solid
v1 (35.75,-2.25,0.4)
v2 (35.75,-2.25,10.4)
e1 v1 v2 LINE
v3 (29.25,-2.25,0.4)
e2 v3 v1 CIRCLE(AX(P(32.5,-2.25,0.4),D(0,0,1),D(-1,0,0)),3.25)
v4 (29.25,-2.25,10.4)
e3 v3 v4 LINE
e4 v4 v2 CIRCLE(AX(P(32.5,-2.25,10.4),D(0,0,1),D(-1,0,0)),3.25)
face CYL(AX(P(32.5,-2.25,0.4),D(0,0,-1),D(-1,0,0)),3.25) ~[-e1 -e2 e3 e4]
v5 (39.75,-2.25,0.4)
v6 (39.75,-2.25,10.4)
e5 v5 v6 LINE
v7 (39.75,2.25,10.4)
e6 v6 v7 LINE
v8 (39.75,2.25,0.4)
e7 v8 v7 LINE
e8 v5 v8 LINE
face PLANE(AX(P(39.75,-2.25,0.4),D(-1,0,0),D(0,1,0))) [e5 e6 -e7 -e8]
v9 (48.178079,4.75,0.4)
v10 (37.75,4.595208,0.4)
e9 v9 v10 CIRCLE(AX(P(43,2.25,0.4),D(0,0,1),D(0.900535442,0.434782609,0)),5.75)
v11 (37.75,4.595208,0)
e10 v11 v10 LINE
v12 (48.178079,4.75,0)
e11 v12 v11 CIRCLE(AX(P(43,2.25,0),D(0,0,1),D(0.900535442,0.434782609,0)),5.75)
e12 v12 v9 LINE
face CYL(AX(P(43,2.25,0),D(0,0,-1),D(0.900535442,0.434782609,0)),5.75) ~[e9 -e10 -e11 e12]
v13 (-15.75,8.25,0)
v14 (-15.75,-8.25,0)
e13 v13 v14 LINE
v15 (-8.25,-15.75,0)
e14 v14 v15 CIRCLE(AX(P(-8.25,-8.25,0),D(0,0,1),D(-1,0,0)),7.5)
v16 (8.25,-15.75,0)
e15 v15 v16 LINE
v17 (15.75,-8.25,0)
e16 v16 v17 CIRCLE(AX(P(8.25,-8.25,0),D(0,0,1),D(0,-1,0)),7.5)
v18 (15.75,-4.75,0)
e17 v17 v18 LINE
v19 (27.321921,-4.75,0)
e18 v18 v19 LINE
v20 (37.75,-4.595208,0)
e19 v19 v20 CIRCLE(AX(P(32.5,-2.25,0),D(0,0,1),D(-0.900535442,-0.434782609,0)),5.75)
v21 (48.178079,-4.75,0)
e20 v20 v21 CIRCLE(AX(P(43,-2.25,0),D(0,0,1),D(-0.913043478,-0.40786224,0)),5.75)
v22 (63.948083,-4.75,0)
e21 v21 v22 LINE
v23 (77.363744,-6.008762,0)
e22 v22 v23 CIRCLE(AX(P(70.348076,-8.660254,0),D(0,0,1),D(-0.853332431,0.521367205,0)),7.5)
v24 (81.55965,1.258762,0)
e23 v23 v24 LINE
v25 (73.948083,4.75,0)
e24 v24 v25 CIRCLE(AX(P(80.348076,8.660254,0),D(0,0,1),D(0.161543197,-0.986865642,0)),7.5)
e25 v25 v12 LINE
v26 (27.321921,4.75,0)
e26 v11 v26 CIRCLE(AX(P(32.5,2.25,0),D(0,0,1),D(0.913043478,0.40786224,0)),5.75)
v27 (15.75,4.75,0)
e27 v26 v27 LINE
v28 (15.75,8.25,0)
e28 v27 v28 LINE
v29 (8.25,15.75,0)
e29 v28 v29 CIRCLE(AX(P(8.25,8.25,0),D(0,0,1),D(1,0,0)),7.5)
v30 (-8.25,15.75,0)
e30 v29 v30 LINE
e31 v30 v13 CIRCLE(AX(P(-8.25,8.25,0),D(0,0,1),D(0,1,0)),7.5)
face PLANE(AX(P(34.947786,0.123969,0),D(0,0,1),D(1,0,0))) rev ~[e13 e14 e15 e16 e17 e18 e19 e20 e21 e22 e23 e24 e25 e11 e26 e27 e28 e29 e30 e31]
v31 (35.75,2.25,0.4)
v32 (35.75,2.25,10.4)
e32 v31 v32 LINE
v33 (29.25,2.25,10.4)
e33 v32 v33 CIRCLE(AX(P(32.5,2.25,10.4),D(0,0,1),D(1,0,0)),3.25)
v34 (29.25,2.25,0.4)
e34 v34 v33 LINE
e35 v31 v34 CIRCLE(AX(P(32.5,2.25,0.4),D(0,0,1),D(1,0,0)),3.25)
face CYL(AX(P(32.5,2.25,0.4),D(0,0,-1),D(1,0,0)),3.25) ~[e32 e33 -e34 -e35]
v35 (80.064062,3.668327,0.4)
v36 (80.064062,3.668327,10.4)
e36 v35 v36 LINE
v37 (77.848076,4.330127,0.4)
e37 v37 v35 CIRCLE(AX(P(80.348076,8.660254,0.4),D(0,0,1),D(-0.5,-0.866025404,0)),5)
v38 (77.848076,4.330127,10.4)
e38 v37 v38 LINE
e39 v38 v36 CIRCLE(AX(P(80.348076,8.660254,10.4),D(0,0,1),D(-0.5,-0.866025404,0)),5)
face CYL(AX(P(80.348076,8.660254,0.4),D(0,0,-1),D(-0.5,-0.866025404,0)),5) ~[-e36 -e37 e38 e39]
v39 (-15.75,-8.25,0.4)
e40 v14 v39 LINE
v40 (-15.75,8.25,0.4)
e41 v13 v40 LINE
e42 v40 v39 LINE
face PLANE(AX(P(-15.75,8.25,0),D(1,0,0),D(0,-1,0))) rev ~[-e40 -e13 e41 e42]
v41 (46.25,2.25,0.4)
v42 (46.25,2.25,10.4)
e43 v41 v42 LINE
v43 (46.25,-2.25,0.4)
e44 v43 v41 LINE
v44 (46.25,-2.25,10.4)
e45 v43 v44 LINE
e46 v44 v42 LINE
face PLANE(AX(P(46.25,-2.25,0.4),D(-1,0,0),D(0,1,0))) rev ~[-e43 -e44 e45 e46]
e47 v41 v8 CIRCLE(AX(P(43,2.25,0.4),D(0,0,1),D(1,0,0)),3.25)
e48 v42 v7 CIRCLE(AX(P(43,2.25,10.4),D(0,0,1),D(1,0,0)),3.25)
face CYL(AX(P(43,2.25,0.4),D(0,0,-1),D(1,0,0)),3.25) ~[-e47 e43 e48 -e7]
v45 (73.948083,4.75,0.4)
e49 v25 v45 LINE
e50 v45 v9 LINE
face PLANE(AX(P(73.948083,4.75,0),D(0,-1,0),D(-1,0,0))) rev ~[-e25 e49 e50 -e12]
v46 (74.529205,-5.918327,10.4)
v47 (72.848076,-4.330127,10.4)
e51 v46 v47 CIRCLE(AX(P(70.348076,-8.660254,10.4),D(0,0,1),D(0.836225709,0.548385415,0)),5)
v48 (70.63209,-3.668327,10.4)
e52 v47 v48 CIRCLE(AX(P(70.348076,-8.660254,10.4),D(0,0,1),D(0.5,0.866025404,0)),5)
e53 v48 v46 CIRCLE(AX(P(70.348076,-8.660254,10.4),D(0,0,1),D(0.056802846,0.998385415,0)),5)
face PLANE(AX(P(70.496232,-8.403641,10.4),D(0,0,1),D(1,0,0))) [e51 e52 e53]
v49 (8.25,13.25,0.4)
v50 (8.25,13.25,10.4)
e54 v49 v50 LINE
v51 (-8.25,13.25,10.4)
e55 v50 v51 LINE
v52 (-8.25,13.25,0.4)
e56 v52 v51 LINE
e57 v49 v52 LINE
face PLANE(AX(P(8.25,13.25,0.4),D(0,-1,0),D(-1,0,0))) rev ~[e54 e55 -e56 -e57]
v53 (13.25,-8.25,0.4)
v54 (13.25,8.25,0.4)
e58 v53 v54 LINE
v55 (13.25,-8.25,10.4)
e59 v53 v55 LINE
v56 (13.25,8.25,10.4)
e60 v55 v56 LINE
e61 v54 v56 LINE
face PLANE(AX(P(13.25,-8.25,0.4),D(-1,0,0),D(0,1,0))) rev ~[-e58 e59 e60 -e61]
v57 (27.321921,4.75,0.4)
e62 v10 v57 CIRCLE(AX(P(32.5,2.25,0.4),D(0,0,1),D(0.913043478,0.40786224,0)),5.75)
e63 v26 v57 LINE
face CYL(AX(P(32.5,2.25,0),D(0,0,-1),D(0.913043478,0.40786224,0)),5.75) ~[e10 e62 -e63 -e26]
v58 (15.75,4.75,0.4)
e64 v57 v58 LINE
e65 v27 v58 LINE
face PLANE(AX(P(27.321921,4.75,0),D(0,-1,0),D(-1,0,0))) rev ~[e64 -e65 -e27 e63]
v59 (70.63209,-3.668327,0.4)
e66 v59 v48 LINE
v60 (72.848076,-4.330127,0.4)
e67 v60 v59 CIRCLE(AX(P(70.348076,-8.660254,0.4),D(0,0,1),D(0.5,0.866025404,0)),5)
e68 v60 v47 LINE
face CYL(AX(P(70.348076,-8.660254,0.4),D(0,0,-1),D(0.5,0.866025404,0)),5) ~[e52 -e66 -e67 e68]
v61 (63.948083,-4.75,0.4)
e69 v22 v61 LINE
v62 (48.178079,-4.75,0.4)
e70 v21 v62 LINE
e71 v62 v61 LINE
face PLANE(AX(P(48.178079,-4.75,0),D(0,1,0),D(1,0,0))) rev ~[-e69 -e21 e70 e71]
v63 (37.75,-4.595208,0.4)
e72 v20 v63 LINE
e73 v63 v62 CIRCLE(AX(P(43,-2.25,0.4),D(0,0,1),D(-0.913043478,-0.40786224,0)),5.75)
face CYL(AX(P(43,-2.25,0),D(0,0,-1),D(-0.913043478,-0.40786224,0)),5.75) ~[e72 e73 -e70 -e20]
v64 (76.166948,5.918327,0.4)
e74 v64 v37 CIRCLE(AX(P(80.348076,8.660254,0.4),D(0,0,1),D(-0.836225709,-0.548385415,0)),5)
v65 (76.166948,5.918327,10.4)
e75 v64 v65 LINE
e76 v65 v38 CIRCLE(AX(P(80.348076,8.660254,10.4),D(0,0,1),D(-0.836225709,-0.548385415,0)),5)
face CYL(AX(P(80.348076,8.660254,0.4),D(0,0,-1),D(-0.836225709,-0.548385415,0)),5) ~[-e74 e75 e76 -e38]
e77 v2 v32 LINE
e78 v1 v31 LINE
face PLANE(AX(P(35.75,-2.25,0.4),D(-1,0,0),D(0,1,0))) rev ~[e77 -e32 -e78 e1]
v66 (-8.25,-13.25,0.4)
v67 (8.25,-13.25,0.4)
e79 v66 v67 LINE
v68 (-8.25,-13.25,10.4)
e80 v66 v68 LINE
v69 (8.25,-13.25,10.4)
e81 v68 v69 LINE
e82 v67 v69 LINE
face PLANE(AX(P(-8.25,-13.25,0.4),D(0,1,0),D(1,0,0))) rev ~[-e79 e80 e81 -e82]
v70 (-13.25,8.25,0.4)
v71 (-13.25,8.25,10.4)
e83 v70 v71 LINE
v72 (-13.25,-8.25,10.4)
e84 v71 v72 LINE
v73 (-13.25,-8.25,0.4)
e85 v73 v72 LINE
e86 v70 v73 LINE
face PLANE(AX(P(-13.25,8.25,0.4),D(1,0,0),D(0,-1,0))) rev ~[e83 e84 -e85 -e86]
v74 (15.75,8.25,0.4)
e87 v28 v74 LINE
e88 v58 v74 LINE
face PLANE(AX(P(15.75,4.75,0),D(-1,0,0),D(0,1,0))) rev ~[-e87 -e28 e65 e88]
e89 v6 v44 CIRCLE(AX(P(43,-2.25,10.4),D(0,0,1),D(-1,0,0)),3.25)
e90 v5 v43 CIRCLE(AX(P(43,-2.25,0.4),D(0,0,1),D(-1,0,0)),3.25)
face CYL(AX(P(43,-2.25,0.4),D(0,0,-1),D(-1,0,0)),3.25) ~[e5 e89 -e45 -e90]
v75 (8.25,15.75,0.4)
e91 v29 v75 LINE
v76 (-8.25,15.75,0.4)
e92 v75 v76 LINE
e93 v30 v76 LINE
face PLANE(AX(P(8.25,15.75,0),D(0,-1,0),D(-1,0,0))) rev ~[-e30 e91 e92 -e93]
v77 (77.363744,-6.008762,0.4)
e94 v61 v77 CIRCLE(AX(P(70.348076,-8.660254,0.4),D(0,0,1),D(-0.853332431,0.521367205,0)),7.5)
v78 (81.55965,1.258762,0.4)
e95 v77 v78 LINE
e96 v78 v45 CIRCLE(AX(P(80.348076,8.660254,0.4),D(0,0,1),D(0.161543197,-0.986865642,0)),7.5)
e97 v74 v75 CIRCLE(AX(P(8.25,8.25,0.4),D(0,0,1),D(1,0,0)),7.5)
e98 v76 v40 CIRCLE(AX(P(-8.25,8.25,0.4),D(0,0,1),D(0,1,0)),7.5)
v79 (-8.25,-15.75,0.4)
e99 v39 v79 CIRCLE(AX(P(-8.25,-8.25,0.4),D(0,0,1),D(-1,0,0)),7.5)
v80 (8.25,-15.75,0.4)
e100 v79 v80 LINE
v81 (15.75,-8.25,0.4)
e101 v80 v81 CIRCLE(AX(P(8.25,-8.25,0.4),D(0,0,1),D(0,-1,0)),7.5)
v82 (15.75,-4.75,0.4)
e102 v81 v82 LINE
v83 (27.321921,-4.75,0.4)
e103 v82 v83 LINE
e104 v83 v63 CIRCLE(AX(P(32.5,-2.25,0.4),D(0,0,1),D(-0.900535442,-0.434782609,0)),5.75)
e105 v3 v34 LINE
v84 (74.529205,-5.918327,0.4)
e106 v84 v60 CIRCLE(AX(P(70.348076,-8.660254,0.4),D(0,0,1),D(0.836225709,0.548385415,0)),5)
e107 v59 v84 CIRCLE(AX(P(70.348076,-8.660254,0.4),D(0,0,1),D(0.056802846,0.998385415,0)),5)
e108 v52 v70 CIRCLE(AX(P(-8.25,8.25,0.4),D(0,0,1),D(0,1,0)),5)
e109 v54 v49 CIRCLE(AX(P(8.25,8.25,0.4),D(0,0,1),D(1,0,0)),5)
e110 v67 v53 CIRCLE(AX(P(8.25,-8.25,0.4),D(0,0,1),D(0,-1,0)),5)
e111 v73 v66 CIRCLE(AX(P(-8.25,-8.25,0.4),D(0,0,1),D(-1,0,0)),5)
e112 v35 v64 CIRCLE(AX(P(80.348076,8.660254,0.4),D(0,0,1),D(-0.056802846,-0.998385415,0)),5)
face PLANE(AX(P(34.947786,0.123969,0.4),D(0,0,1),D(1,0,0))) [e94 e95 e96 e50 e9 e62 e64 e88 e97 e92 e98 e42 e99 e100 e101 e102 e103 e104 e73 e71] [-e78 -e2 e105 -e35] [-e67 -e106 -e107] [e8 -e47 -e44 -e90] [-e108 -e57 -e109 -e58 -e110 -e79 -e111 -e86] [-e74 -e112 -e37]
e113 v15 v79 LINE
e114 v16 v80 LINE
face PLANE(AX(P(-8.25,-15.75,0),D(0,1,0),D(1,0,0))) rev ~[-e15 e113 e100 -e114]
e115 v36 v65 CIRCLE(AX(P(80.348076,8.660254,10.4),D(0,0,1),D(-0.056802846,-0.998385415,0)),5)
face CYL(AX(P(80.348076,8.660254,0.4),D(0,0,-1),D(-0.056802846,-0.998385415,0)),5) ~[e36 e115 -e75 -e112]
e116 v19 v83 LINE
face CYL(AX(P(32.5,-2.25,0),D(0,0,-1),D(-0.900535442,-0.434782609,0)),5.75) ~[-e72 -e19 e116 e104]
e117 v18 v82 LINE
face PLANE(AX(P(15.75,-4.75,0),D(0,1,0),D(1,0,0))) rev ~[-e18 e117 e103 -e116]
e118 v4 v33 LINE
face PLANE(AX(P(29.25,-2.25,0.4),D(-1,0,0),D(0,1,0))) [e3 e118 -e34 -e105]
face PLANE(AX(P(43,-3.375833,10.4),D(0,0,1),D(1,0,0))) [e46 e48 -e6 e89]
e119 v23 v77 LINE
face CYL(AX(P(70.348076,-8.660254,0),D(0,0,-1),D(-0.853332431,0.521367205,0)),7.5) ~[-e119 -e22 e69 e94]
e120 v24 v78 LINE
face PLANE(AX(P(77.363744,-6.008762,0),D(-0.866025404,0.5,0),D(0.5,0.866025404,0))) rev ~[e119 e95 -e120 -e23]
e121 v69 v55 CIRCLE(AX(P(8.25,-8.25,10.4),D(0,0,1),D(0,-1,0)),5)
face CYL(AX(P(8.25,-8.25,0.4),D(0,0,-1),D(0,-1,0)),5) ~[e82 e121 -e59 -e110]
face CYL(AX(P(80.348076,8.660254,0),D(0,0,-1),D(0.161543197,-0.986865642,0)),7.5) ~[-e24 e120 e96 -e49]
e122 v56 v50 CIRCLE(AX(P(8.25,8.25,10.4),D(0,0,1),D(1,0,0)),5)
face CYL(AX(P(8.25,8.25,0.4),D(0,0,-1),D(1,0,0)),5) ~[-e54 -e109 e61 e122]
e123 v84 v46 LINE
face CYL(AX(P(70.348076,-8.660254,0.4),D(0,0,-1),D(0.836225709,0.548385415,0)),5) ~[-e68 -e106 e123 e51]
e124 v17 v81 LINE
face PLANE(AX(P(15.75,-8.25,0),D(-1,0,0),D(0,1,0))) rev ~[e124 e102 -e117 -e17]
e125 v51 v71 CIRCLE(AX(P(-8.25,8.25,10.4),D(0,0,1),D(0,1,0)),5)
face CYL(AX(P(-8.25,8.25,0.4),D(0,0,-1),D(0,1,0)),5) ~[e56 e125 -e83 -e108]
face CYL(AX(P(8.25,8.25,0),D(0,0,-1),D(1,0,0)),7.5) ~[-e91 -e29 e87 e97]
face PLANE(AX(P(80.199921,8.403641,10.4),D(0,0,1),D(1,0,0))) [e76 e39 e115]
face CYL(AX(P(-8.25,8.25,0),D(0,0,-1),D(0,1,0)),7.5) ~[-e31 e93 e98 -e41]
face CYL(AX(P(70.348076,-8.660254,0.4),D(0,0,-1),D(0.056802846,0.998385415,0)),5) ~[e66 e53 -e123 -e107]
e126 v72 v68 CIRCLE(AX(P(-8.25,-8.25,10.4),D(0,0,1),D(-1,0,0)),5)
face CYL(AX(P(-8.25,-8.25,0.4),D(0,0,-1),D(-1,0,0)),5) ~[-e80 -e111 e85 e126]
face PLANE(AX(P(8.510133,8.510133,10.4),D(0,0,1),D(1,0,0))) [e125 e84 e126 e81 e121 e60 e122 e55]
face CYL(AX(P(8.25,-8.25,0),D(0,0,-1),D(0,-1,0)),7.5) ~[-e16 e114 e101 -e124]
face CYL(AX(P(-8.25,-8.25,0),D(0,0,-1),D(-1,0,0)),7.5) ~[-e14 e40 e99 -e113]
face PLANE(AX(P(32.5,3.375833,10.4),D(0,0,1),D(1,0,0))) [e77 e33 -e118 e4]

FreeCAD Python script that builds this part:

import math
import FreeCAD as App
import Part
import Sketcher

V = App.Vector
Q = App.Units.Quantity

doc = App.newDocument("Part")
body = doc.addObject("PartDesign::Body", "Body")

# Sketch on XY plane
sketch1 = body.newObject("Sketcher::SketchObject", "Sketch")
sketch1.AttachmentSupport = (doc.getObject("XY_Plane"), [""])
sketch1.MapMode = "FlatFace"
sketch1.addGeometry([
    Part.LineSegment(V(15.8, 4.8, 0), V(15.8, 8.2, 0)),  # 0
    Part.ArcOfCircle(Part.Circle(V(8.2, 8.2, 0), V(0, 0, 1), 7.5), math.radians(0), math.radians(90)),  # 1
    Part.LineSegment(V(8.2, 15.8, 0), V(-8.2, 15.8, 0)),  # 2
    Part.ArcOfCircle(Part.Circle(V(-8.2, 8.2, 0), V(0, 0, 1), 7.5), math.radians(90), math.radians(180)),  # 3
    Part.LineSegment(V(-15.8, 8.2, 0), V(-15.8, -8.2, 0)),  # 4
    Part.ArcOfCircle(Part.Circle(V(-8.2, -8.2, 0), V(0, 0, 1), 7.5), math.radians(180), math.radians(270)),  # 5
    Part.LineSegment(V(-8.2, -15.8, 0), V(8.2, -15.8, 0)),  # 6
    Part.ArcOfCircle(Part.Circle(V(8.2, -8.2, 0), V(0, 0, 1), 7.5), math.radians(-90), math.radians(0)),  # 7
    Part.LineSegment(V(15.8, -8.2, 0), V(15.8, -4.8, 0)),  # 8
    Part.LineSegment(V(15.8, -4.8, 0), V(27.3, -4.8, 0)),  # 9
    Part.ArcOfCircle(Part.Circle(V(32.5, -2.2, 0), V(0, 0, 1), 5.8), math.radians(-154), math.radians(-24)),  # 10
    Part.ArcOfCircle(Part.Circle(V(43, -2.2, 0), V(0, 0, 1), 5.8), math.radians(-156), math.radians(-26)),  # 11
    Part.LineSegment(V(48.2, -4.8, 0), V(63.9, -4.8, 0)),  # 12
    Part.ArcOfCircle(Part.Circle(V(70.3, -8.7, 0), V(0, 0, 1), 7.5), math.radians(149), math.radians(381)),  # 13
    Part.LineSegment(V(77.4, -6, 0), V(81.6, 1.3, 0)),  # 14
    Part.ArcOfCircle(Part.Circle(V(80.3, 8.7, 0), V(0, 0, 1), 7.5), math.radians(-81), math.radians(211)),  # 15
    Part.LineSegment(V(73.9, 4.8, 0), V(48.2, 4.8, 0)),  # 16
    Part.ArcOfCircle(Part.Circle(V(43, 2.2, 0), V(0, 0, 1), 5.8), math.radians(26), math.radians(156)),  # 17
    Part.ArcOfCircle(Part.Circle(V(32.5, 2.2, 0), V(0, 0, 1), 5.8), math.radians(24), math.radians(154)),  # 18
    Part.LineSegment(V(27.3, 4.8, 0), V(15.8, 4.8, 0)),  # 19
], False)
sketch1.addConstraint([
    Sketcher.Constraint("Tangent", 0, 2, 1, 1),
    Sketcher.Constraint("Tangent", 1, 2, 2, 1),
    Sketcher.Constraint("Tangent", 2, 2, 3, 1),
    Sketcher.Constraint("Tangent", 3, 2, 4, 1),
    Sketcher.Constraint("Tangent", 4, 2, 5, 1),
    Sketcher.Constraint("Tangent", 5, 2, 6, 1),
    Sketcher.Constraint("Tangent", 6, 2, 7, 1),
    Sketcher.Constraint("Tangent", 7, 2, 8, 1),
    Sketcher.Constraint("Coincident", 8, 2, 9, 1),
    Sketcher.Constraint("Coincident", 9, 2, 10, 1),
    Sketcher.Constraint("Coincident", 10, 2, 11, 1),
    Sketcher.Constraint("Coincident", 11, 2, 12, 1),
    Sketcher.Constraint("Coincident", 12, 2, 13, 1),
    Sketcher.Constraint("Coincident", 13, 2, 14, 1),
    Sketcher.Constraint("Coincident", 14, 2, 15, 1),
    Sketcher.Constraint("Coincident", 15, 2, 16, 1),
    Sketcher.Constraint("Coincident", 16, 2, 17, 1),
    Sketcher.Constraint("Coincident", 17, 2, 18, 1),
    Sketcher.Constraint("Coincident", 18, 2, 19, 1),
    Sketcher.Constraint("Coincident", 19, 2, 0, 1),
    Sketcher.Constraint("Vertical", 0),
    Sketcher.Constraint("Horizontal", 2),
    Sketcher.Constraint("Vertical", 4),
    Sketcher.Constraint("Horizontal", 6),
    Sketcher.Constraint("Vertical", 8),
    Sketcher.Constraint("Horizontal", 9),
    Sketcher.Constraint("Horizontal", 12),
    Sketcher.Constraint("Horizontal", 16),
    Sketcher.Constraint("Horizontal", 19),
    Sketcher.Constraint("Equal", 1, 3),
    Sketcher.Constraint("Equal", 3, 5),
    Sketcher.Constraint("Equal", 5, 7),
    Sketcher.Constraint("Equal", 10, 11),
    Sketcher.Constraint("Equal", 7, 13),
    Sketcher.Constraint("Equal", 13, 15),
    Sketcher.Constraint("Equal", 11, 17),
    Sketcher.Constraint("Equal", 17, 18),
    Sketcher.Constraint("Symmetric", 1, 3, 5, 3, -1, 1),
    Sketcher.Constraint("Symmetric", 11, 3, 17, 3, -1),
    Sketcher.Constraint("Symmetric", 10, 3, 18, 3, -1),
    Sketcher.Constraint("Symmetric", 8, 2, 19, 2, -1),
    Sketcher.Constraint("Horizontal", 10, 3, 11, 3),
    Sketcher.Constraint("Horizontal", 9, 2, 11, 2),
    Sketcher.Constraint("Horizontal", 16, 2, 18, 2),
    Sketcher.Constraint("Equal", 6, 4),
    Sketcher.Constraint("Radius", 1, 7.5),
    Sketcher.Constraint("Angle", 14, Q("60 deg")),
    Sketcher.Constraint("Radius", 10, 5.75),
    Sketcher.Constraint("DistanceX", 2, 2, 2, 1, 16.5),
    Sketcher.Constraint("DistanceY", 0, 1, 0, 2, 3.5),
    Sketcher.Constraint("DistanceX", -1, 1, 11, 3, 43.0),
    Sketcher.Constraint("DistanceY", 7, 3, 10, 3, 6.0),
    Sketcher.Constraint("DistanceX", 13, 3, 15, 3, 10.0),
    Sketcher.Constraint("DistanceX", 12, 2, 15, 2, 10.0),
    Sketcher.Constraint("DistanceX", -1, 1, 10, 3, 32.5),
    Sketcher.Constraint("DistanceX", 12, 1, 12, 2, 15.770004),
    Sketcher.Constraint("DistanceY", 13, 2, -1, 1, 6.008762),
    Sketcher.Constraint("DistanceX", -1, 1, 14, 2, 81.55965),
])
pad1 = body.newObject("PartDesign::Pad", "Pad")
pad1.Profile = sketch1
pad1.Length = 0.4

# Sketch on XY plane
sketch2 = body.newObject("Sketcher::SketchObject", "Sketch001")
sketch2.AttachmentSupport = (doc.getObject("XY_Plane"), [""])
sketch2.MapMode = "FlatFace"
sketch2.AttachmentOffset = App.Placement(V(0, 0, 0.4), App.Rotation())
sketch2.addGeometry([
    Part.ArcOfCircle(Part.Circle(V(8.2, 8.2, 0), V(0, 0, 1), 5), math.radians(0), math.radians(90)),  # 0
    Part.LineSegment(V(8.2, 13.2, 0), V(-8.2, 13.2, 0)),  # 1
    Part.ArcOfCircle(Part.Circle(V(-8.2, 8.2, 0), V(0, 0, 1), 5), math.radians(90), math.radians(180)),  # 2
    Part.LineSegment(V(-13.2, 8.2, 0), V(-13.2, -8.2, 0)),  # 3
    Part.ArcOfCircle(Part.Circle(V(-8.2, -8.2, 0), V(0, 0, 1), 5), math.radians(180), math.radians(270)),  # 4
    Part.LineSegment(V(-8.2, -13.2, 0), V(8.2, -13.2, 0)),  # 5
    Part.ArcOfCircle(Part.Circle(V(8.2, -8.2, 0), V(0, 0, 1), 5), math.radians(-90), math.radians(0)),  # 6
    Part.LineSegment(V(13.2, -8.2, 0), V(13.2, 8.2, 0)),  # 7
    Part.ArcOfCircle(Part.Circle(V(32.5, 2.2, 0), V(0, 0, 1), 3.2), math.radians(0), math.radians(180)),  # 8
    Part.LineSegment(V(29.2, 2.2, 0), V(29.2, -2.2, 0)),  # 9
    Part.ArcOfCircle(Part.Circle(V(32.5, -2.2, 0), V(0, 0, 1), 3.2), math.radians(180), math.radians(360)),  # 10
    Part.LineSegment(V(35.8, -2.2, 0), V(35.8, 2.2, 0)),  # 11
    Part.ArcOfCircle(Part.Circle(V(43, -2.2, 0), V(0, 0, 1), 3.2), math.radians(180), math.radians(360)),  # 12
    Part.LineSegment(V(46.2, -2.2, 0), V(46.2, 2.2, 0)),  # 13
    Part.ArcOfCircle(Part.Circle(V(43, 2.2, 0), V(0, 0, 1), 3.2), math.radians(0), math.radians(180)),  # 14
    Part.LineSegment(V(39.8, 2.2, 0), V(39.8, -2.2, 0)),  # 15
    Part.ArcOfCircle(Part.Circle(V(70.3, -8.7, 0), V(0, 0, 1), 5), math.radians(60), math.radians(87)),  # 16
    Part.ArcOfCircle(Part.Circle(V(70.3, -8.7, 0), V(0, 0, 1), 5), math.radians(87), math.radians(393)),  # 17
    Part.ArcOfCircle(Part.Circle(V(70.3, -8.7, 0), V(0, 0, 1), 5), math.radians(33), math.radians(60)),  # 18
    Part.ArcOfCircle(Part.Circle(V(80.3, 8.7, 0), V(0, 0, 1), 5), math.radians(-93), math.radians(213)),  # 19
    Part.ArcOfCircle(Part.Circle(V(80.3, 8.7, 0), V(0, 0, 1), 5), math.radians(-147), math.radians(-120)),  # 20
    Part.ArcOfCircle(Part.Circle(V(80.3, 8.7, 0), V(0, 0, 1), 5), math.radians(-120), math.radians(-93)),  # 21
], False)
sketch2.addConstraint([
    Sketcher.Constraint("Tangent", 0, 2, 1, 1),
    Sketcher.Constraint("Tangent", 1, 2, 2, 1),
    Sketcher.Constraint("Tangent", 2, 2, 3, 1),
    Sketcher.Constraint("Tangent", 3, 2, 4, 1),
    Sketcher.Constraint("Tangent", 4, 2, 5, 1),
    Sketcher.Constraint("Tangent", 5, 2, 6, 1),
    Sketcher.Constraint("Tangent", 6, 2, 7, 1),
    Sketcher.Constraint("Tangent", 7, 2, 0, 1),
    Sketcher.Constraint("Tangent", 8, 2, 9, 1),
    Sketcher.Constraint("Tangent", 9, 2, 10, 1),
    Sketcher.Constraint("Tangent", 10, 2, 11, 1),
    Sketcher.Constraint("Tangent", 11, 2, 8, 1),
    Sketcher.Constraint("Tangent", 12, 2, 13, 1),
    Sketcher.Constraint("Tangent", 13, 2, 14, 1),
    Sketcher.Constraint("Tangent", 14, 2, 15, 1),
    Sketcher.Constraint("Tangent", 15, 2, 12, 1),
    Sketcher.Constraint("Tangent", 16, 2, 17, 1),
    Sketcher.Constraint("Tangent", 17, 2, 18, 1),
    Sketcher.Constraint("Tangent", 18, 2, 16, 1),
    Sketcher.Constraint("Tangent", 19, 2, 20, 1),
    Sketcher.Constraint("Tangent", 20, 2, 21, 1),
    Sketcher.Constraint("Tangent", 21, 2, 19, 1),
    Sketcher.Constraint("Horizontal", 1),
    Sketcher.Constraint("Vertical", 3),
    Sketcher.Constraint("Horizontal", 5),
    Sketcher.Constraint("Vertical", 7),
    Sketcher.Constraint("Vertical", 9),
    Sketcher.Constraint("Vertical", 11),
    Sketcher.Constraint("Vertical", 13),
    Sketcher.Constraint("Vertical", 15),
    Sketcher.Constraint("Equal", 0, 2),
    Sketcher.Constraint("Equal", 2, 4),
    Sketcher.Constraint("Equal", 4, 6),
    Sketcher.Constraint("Equal", 10, 12),
    Sketcher.Constraint("Equal", 6, 16),
    Sketcher.Constraint("Equal", 18, 19),
    Sketcher.Constraint("Symmetric", 0, 3, 4, 3, -1, 1),
    Sketcher.Constraint("Horizontal", 10, 3, 12, 3),
    Sketcher.Constraint("Horizontal", 8, 3, 14, 3),
    Sketcher.Constraint("Equal", 5, 3),
    Sketcher.Constraint("Radius", 0, 5.0),
    Sketcher.Constraint("Radius", 8, 3.25),
    Sketcher.Constraint("DistanceX", 1, 2, 1, 1, 16.5),
    Sketcher.Constraint("DistanceY", 9, 2, 9, 1, 4.5),
    Sketcher.Constraint("DistanceX", -1, 1, 12, 3, 43.0),
    Sketcher.Constraint("DistanceY", 8, 3, 0, 3, 6.0),
    Sketcher.Constraint("DistanceX", 18, 3, 19, 3, 10.0),
    Sketcher.Constraint("DistanceX", 7, 2, 8, 2, 16.0),
    Sketcher.Constraint("DistanceX", 18, 2, 20, 2, 5.0),
    Sketcher.Constraint("DistanceX", 18, 3, 18, 2, 2.5),
    Sketcher.Constraint("DistanceY", 17, 2, 16, 2, 2.25),
    Sketcher.Constraint("DistanceY", 21, 2, 19, 2, 2.25),
    Sketcher.Constraint("DistanceY", 17, 2, 18, 2, 1.5882),
    Sketcher.Constraint("DistanceY", 20, 2, 19, 2, 1.5882),
    Sketcher.Constraint("DistanceX", -1, 1, 16, 2, 70.63209),
    Sketcher.Constraint("DistanceY", 18, 3, 19, 3, 17.320508),
    Sketcher.Constraint("DistanceY", 16, 3, -1, 1, 8.660254),
])
pad2 = body.newObject("PartDesign::Pad", "Pad001")
pad2.Profile = sketch2
pad2.Length = 10

doc.recompute()
